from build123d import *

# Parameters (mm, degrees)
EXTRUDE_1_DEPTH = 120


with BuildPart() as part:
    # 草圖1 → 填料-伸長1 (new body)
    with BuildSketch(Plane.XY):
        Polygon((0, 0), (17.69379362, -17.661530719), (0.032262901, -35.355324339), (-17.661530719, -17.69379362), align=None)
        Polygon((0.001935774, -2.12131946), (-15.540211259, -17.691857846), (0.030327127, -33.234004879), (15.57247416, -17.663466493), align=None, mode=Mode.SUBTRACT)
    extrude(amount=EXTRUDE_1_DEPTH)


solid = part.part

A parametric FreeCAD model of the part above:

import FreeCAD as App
import Part
import Sketcher

V = App.Vector

doc = App.newDocument("Part")
body = doc.addObject("PartDesign::Body", "Body")

# Sketch on XY plane
sketch1 = body.newObject("Sketcher::SketchObject", "Sketch")
sketch1.AttachmentSupport = (doc.getObject("XY_Plane"), [""])
sketch1.MapMode = "FlatFace"
sketch1.addGeometry([
    Part.LineSegment(V(18, -18, 0), V(0, 0, 0)),  # 0
    Part.LineSegment(V(0, 0, 0), V(-18, -18, 0)),  # 1
    Part.LineSegment(V(-18, -18, 0), V(0, -35, 0)),  # 2
    Part.LineSegment(V(0, -35, 0), V(18, -18, 0)),  # 3
    Part.LineSegment(V(0, -2, 0), V(16, -18, 0)),  # 4
    Part.LineSegment(V(16, -18, 0), V(0, -33, 0)),  # 5
    Part.LineSegment(V(0, -33, 0), V(-16, -18, 0)),  # 6
    Part.LineSegment(V(-16, -18, 0), V(0, -2, 0)),  # 7
], False)
sketch1.addConstraint([
    Sketcher.Constraint("Coincident", 0, 2, 1, 1),
    Sketcher.Constraint("Coincident", 1, 2, 2, 1),
    Sketcher.Constraint("Coincident", 2, 2, 3, 1),
    Sketcher.Constraint("Coincident", 3, 2, 0, 1),
    Sketcher.Constraint("Coincident", 4, 2, 5, 1),
    Sketcher.Constraint("Coincident", 5, 2, 6, 1),
    Sketcher.Constraint("Coincident", 6, 2, 7, 1),
    Sketcher.Constraint("Coincident", 7, 2, 4, 1),
    Sketcher.Constraint("Coincident", 0, 2, -1, 1),
    Sketcher.Constraint("Perpendicular", 0, 1),
    Sketcher.Constraint("Perpendicular", 1, 2),
    Sketcher.Constraint("Perpendicular", 2, 3),
    Sketcher.Constraint("Perpendicular", 3, 4),
    Sketcher.Constraint("Perpendicular", 4, 5),
    Sketcher.Constraint("Perpendicular", 5, 6),
    Sketcher.Constraint("Perpendicular", 6, 7),
    Sketcher.Constraint("Equal", 0, 1),
    Sketcher.Constraint("Equal", 4, 5),
    Sketcher.Constraint("Distance", 0, 25.0),
    Sketcher.Constraint("Distance", 4, 22.0),
    Sketcher.Constraint("DistanceX", 1, 2, -1, 1, 17.661531),
    Sketcher.Constraint("DistanceX", 6, 2, -1, 1, 15.540211),
    Sketcher.Constraint("DistanceY", 7, 2, -1, 1, 2.121319),
])
pad1 = body.newObject("PartDesign::Pad", "Pad")
pad1.Profile = sketch1
pad1.Length = 120

doc.recompute()
